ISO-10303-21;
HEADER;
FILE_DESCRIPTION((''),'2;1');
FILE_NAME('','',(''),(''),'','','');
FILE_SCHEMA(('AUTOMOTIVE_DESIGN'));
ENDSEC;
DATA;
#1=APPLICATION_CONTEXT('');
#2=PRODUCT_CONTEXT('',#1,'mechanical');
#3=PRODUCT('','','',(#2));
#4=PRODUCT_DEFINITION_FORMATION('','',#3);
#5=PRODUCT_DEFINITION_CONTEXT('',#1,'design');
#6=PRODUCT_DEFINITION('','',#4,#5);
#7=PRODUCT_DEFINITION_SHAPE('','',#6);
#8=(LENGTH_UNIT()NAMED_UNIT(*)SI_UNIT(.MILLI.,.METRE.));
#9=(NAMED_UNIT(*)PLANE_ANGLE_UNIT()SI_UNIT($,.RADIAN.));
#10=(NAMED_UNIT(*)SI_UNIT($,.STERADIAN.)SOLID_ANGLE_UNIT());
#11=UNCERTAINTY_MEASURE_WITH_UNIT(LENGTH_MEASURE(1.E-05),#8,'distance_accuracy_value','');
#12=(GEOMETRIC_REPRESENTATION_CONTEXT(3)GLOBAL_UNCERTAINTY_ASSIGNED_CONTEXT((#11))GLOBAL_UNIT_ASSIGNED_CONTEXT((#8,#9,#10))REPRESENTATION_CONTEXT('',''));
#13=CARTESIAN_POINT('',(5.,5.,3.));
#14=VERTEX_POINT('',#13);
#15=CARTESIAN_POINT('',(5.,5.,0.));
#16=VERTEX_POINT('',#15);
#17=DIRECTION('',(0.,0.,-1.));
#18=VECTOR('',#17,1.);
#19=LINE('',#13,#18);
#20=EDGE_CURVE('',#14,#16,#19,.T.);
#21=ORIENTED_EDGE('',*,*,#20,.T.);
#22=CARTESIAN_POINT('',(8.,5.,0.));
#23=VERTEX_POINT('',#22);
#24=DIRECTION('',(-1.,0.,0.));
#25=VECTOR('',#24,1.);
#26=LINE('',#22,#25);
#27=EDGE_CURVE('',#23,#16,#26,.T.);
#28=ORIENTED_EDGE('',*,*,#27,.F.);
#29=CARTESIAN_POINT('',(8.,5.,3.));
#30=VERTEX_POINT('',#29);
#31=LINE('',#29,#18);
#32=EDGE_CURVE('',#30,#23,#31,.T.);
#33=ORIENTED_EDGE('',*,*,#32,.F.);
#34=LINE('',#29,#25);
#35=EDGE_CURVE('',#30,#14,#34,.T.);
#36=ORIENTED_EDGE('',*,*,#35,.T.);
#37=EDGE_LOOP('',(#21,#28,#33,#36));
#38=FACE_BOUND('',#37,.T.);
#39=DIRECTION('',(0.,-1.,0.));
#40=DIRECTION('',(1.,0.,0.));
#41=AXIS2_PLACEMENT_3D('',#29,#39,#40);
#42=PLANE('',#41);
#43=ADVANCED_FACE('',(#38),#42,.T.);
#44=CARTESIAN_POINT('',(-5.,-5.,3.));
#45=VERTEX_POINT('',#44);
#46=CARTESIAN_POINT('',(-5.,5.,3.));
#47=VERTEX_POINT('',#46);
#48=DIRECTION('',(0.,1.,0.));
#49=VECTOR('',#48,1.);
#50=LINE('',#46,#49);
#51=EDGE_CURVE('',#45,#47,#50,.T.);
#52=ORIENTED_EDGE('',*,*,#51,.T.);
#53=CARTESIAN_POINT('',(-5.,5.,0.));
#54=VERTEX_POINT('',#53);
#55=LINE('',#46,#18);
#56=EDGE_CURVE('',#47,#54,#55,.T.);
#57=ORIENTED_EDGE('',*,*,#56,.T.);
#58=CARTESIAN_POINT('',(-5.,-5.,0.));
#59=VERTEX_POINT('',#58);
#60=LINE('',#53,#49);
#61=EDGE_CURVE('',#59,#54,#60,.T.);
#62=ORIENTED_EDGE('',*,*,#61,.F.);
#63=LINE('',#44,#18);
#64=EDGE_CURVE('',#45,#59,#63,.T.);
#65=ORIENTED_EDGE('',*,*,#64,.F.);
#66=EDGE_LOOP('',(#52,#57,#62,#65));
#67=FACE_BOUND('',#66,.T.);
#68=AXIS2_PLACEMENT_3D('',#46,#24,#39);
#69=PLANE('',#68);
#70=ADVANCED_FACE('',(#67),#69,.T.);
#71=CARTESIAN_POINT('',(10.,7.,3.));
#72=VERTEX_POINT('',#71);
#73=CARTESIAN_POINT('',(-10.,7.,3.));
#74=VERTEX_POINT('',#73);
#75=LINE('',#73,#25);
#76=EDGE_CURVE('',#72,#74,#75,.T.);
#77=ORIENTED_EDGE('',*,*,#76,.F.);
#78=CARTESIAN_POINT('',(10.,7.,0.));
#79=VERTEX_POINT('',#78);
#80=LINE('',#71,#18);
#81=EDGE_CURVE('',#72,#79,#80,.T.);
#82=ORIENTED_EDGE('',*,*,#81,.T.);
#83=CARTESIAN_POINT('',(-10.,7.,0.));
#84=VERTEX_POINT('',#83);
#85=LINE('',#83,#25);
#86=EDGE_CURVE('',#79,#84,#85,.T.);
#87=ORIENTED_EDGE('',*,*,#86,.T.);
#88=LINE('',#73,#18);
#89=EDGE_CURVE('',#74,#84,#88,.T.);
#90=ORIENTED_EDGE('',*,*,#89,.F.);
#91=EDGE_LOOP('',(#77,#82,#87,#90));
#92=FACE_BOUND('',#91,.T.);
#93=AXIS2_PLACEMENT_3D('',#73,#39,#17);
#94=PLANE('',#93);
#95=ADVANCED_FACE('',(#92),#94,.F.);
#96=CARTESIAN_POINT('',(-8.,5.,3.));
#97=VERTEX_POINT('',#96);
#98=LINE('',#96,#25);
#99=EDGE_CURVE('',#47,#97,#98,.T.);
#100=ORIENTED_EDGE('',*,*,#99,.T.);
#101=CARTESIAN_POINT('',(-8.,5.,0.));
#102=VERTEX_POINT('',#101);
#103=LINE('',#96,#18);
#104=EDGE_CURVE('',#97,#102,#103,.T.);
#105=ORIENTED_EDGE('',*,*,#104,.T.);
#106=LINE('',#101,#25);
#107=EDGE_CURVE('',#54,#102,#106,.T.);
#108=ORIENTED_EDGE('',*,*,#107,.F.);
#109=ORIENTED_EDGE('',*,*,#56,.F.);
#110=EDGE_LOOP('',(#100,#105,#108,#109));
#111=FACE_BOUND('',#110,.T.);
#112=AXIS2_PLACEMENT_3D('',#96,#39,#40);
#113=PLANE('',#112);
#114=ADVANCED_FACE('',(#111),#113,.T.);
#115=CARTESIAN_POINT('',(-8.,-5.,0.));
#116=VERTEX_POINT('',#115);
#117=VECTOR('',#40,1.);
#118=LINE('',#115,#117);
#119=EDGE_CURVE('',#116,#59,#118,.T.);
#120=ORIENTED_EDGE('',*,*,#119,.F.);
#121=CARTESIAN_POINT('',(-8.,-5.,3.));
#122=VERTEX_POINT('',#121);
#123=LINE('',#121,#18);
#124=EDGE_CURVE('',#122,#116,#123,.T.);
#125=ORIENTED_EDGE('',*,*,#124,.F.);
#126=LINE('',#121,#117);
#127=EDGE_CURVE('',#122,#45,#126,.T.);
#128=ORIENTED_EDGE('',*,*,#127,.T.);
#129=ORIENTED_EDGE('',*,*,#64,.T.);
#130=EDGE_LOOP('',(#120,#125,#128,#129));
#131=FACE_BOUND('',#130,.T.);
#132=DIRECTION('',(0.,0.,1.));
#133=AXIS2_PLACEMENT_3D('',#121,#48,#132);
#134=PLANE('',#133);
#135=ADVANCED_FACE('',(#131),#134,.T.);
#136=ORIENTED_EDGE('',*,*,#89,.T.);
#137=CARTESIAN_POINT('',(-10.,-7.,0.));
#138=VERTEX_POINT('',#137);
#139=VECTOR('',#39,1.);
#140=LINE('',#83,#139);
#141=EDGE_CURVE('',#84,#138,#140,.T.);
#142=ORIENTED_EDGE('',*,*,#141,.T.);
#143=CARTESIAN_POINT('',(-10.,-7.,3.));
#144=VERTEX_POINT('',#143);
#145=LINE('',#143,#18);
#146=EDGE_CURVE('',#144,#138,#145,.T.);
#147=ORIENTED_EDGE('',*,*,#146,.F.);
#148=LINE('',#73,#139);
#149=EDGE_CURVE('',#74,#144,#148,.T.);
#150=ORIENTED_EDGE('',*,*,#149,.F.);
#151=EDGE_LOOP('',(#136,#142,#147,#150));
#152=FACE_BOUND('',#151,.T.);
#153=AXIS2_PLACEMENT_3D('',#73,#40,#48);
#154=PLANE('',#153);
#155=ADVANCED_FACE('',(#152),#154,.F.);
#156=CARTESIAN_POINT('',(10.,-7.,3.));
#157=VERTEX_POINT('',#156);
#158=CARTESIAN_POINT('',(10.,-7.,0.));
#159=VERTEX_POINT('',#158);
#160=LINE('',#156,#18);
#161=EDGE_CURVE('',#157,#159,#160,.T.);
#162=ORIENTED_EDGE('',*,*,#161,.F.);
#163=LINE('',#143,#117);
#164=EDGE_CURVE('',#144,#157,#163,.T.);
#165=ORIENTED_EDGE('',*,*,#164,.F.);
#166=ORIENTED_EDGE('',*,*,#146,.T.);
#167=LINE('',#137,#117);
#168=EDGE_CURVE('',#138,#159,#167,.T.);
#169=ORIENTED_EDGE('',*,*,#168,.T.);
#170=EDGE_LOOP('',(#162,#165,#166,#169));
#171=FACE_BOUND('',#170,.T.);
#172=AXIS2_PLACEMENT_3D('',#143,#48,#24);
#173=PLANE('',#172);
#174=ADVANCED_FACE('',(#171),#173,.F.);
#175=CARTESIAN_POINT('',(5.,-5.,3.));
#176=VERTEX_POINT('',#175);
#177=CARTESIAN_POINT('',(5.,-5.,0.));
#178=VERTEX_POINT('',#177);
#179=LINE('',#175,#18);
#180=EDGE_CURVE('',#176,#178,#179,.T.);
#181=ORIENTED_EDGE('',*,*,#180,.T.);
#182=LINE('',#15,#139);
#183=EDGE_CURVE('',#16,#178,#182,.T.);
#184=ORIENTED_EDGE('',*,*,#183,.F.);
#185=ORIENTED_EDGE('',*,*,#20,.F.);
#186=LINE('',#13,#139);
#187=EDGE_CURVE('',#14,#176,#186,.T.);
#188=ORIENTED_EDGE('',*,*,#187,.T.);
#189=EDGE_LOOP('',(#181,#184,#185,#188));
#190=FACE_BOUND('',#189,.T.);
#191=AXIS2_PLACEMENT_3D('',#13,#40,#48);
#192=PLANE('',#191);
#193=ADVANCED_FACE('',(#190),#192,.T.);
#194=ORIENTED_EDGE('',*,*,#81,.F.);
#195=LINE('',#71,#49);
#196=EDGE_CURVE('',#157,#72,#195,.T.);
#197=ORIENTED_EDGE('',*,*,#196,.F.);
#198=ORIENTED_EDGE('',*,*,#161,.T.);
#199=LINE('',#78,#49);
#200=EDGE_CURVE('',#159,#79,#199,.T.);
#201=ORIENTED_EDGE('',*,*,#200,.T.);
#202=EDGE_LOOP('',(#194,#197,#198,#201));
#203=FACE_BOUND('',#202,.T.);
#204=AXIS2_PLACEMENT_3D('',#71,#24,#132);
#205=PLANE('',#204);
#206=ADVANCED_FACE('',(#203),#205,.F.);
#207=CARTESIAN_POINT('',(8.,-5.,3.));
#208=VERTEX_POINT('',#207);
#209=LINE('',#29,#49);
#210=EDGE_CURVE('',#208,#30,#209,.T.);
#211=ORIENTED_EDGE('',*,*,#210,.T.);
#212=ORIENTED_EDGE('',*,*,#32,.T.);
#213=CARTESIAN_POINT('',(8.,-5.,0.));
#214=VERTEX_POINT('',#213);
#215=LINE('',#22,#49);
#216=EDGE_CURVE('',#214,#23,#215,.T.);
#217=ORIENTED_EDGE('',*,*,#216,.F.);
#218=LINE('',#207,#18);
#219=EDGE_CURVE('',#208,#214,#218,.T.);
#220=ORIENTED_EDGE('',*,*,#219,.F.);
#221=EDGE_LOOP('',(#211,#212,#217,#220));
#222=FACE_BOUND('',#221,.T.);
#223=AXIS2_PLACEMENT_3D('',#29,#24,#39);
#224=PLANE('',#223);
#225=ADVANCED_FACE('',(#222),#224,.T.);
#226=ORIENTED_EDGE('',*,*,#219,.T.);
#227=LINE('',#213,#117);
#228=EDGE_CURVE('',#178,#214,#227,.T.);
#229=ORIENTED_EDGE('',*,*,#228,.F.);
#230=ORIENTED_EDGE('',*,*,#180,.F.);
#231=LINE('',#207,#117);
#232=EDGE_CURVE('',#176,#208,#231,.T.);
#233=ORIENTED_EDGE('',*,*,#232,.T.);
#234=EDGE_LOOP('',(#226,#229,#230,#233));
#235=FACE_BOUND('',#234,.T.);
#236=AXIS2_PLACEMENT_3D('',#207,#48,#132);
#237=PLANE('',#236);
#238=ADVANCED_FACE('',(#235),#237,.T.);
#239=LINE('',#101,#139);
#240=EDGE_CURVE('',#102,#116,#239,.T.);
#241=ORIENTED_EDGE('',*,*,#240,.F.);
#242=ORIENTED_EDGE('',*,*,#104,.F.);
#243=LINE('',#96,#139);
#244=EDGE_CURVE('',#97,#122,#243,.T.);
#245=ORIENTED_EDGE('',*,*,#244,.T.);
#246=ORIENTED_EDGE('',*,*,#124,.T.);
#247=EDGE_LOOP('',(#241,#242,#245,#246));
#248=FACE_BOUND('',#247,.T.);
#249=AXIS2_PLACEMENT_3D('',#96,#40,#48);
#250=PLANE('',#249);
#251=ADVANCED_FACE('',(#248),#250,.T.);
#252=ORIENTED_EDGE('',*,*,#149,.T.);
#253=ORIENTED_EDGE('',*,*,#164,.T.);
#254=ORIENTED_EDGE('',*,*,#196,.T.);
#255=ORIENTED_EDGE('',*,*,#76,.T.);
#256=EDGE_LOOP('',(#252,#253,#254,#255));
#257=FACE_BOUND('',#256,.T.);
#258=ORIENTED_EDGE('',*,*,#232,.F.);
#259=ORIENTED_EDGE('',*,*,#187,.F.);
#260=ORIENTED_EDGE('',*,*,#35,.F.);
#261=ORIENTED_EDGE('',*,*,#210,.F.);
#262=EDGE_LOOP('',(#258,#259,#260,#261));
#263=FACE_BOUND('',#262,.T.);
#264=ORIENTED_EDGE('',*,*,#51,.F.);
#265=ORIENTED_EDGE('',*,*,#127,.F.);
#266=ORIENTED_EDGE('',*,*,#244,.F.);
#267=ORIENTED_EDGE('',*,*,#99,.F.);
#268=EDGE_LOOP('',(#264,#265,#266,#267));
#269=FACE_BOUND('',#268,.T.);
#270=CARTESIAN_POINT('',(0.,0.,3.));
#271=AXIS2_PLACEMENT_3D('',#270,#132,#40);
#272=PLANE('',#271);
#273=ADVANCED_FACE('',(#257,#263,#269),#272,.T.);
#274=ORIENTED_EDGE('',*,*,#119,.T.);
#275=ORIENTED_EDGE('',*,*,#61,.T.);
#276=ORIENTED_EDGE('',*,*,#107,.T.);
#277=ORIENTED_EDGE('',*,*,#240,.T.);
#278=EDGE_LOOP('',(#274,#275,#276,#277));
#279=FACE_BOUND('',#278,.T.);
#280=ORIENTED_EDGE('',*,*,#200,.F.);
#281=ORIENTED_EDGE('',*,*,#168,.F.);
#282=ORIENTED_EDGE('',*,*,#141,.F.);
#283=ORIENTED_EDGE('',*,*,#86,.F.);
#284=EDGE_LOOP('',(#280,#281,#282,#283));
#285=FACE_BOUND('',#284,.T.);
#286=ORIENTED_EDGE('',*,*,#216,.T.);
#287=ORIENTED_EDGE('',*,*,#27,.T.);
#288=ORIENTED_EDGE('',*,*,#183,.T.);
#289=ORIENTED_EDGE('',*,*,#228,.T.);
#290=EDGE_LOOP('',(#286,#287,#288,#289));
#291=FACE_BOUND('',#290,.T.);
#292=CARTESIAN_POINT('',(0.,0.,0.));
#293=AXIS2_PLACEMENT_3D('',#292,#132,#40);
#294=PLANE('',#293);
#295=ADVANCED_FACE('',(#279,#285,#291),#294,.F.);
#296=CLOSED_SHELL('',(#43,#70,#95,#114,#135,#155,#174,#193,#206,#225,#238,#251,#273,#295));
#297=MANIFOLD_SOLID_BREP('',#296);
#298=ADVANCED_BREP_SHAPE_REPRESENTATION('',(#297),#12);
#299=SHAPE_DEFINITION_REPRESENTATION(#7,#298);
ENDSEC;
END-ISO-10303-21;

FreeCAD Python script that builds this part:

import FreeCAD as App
import Part
import Sketcher
from FreeCAD import Vector
Q = App.Units.Quantity


def add_polygon(sketch, points):
    """Adds a closed chain of lines whose ends are joined by coincident constraints."""
    first, n = sketch.GeometryCount, len(points)
    for a, b in zip(points, points[1:] + points[:1]):
        sketch.addGeometry(Part.LineSegment(App.Vector(*a, 0), App.Vector(*b, 0)), False)
    for i in range(n):
        sketch.addConstraint(Sketcher.Constraint("Coincident", first + i, 2, first + (i + 1) % n, 1))

doc = App.newDocument("Part")
params = doc.addObject("Spreadsheet::Sheet", "Params")
for row, (alias, value) in enumerate([
    ("sketch1_width", "20 mm"),
    ("sketch1_width2", "3 mm"),
    ("sketch1_height", "14 mm"),
    ("sketch1_height2", "10 mm"),
    ("pad1_length", "3 mm"),
], start=1):
    params.set(f"A{row}", alias)
    params.set(f"B{row}", "=" + value)
    params.setAlias(f"B{row}", alias)

body = doc.addObject("PartDesign::Body", "Body")

# Sketch on XY plane
sketch1 = body.newObject("Sketcher::SketchObject", "Sketch")
sketch1.AttachmentSupport = (doc.getObject("XY_Plane"), [""])
sketch1.MapMode = "FlatFace"
add_polygon(sketch1, [(-10, 7), (-10, -7), (10, -7), (10, 7)])  # lines 0-3
add_polygon(sketch1, [(-5, -5), (-8, -5), (-8, 5), (-5, 5)])  # lines 4-7
add_polygon(sketch1, [(8, -5), (5, -5), (5, 5), (8, 5)])  # lines 8-11
sketch1.addConstraint([
    Sketcher.Constraint("Vertical", 0),
    Sketcher.Constraint("Horizontal", 1),
    Sketcher.Constraint("Vertical", 2),
    Sketcher.Constraint("Horizontal", 3),
    Sketcher.Constraint("Horizontal", 4),
    Sketcher.Constraint("Vertical", 5),
    Sketcher.Constraint("Horizontal", 6),
    Sketcher.Constraint("Vertical", 7),
    Sketcher.Constraint("Horizontal", 8),
    Sketcher.Constraint("Vertical", 9),
    Sketcher.Constraint("Horizontal", 10),
    Sketcher.Constraint("Vertical", 11),
    Sketcher.Constraint("Symmetric", 0, 2, 2, 2, -1, 1),
    Sketcher.Constraint("Symmetric", 6, 2, 8, 2, -1, 1),
    Sketcher.Constraint("Symmetric", 4, 2, 10, 2, -1, 1),
    Sketcher.Constraint("Horizontal", 7, 2, 8, 2),
    Sketcher.Constraint("DistanceX", 1, 1, 1, 2, Q("20 mm")),
    Sketcher.Constraint("DistanceX", 4, 2, 4, 1, Q("3 mm")),
    Sketcher.Constraint("DistanceY", 0, 2, 0, 1, Q("14 mm")),
    Sketcher.Constraint("DistanceY", 5, 1, 5, 2, Q("10 mm")),
    Sketcher.Constraint("DistanceX", 4, 2, -1, 1, Q("8 mm")),
])
sketch1.setExpression("Constraints[28]", "Params.sketch1_width")
sketch1.setExpression("Constraints[29]", "Params.sketch1_width2")
sketch1.setExpression("Constraints[30]", "Params.sketch1_height")
sketch1.setExpression("Constraints[31]", "Params.sketch1_height2")
pad1 = body.newObject("PartDesign::Pad", "Pad")
pad1.Profile = sketch1
pad1.setExpression("Length", "Params.pad1_length")

doc.recompute()
